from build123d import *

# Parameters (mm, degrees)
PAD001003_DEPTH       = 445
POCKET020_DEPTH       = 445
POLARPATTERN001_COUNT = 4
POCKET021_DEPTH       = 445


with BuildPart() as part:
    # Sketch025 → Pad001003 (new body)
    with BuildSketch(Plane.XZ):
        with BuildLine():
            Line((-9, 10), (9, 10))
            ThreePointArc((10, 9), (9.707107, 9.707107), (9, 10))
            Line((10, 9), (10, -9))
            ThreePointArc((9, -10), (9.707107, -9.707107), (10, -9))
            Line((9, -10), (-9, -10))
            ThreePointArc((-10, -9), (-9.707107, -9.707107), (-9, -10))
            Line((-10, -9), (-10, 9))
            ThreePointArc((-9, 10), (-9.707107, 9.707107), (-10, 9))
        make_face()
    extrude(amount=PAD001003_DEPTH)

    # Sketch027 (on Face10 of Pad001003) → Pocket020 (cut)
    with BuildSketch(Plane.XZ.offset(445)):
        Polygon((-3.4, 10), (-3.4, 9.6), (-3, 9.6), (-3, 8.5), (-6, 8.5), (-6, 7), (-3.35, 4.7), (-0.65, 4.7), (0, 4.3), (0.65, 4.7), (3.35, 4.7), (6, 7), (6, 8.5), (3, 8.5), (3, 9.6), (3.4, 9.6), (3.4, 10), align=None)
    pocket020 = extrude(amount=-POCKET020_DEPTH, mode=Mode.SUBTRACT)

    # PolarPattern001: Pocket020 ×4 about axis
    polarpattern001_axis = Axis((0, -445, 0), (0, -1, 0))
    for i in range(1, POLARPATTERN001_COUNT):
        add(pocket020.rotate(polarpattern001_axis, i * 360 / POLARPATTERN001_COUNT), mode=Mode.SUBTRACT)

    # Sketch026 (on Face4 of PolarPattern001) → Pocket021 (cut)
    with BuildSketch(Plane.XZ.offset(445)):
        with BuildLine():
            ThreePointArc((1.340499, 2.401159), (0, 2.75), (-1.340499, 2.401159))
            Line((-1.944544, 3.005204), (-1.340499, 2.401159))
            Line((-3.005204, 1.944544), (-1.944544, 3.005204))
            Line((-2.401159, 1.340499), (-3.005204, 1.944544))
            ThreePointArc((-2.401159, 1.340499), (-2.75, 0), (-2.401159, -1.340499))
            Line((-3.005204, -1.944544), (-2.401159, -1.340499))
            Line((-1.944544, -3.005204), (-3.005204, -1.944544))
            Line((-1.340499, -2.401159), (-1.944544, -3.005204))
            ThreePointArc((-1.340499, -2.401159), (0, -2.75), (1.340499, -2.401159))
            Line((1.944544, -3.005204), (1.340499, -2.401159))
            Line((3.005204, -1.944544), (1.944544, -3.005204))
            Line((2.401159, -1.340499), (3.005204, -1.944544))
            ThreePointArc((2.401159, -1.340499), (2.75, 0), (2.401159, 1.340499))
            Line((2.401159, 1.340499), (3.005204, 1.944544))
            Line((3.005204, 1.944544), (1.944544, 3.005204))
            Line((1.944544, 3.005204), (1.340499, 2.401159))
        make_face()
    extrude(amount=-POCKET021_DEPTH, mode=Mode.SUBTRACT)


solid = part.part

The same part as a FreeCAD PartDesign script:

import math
import FreeCAD as App
import Part
import Sketcher
from FreeCAD import Vector
Q = App.Units.Quantity

doc = App.newDocument("Part")
body = doc.addObject("PartDesign::Body", "Body")

sketch1 = body.newObject("Sketcher::SketchObject", "Sketch")
sketch1.AttachmentSupport = (doc.getObject("XZ_Plane"), [""])
sketch1.MapMode = "FlatFace"
sketch1.addGeometry([
    Part.LineSegment(Vector(9, 10, 0), Vector(-9, 10, 0)),
    Part.ArcOfCircle(Part.Circle(Vector(-9, 9, 0), Vector(0, 0, 1), 1), math.radians(90), math.radians(180)),
    Part.LineSegment(Vector(-10, 9, 0), Vector(-10, -9, 0)),
    Part.ArcOfCircle(Part.Circle(Vector(-9, -9, 0), Vector(0, 0, 1), 1), math.radians(180), math.radians(270)),
    Part.LineSegment(Vector(-9, -10, 0), Vector(9, -10, 0)),
    Part.ArcOfCircle(Part.Circle(Vector(9, -9, 0), Vector(0, 0, 1), 1), math.radians(-90), math.radians(0)),
    Part.LineSegment(Vector(10, -9, 0), Vector(10, 9, 0)),
    Part.ArcOfCircle(Part.Circle(Vector(9, 9, 0), Vector(0, 0, 1), 1), math.radians(0), math.radians(90)),
], False)
sketch1.addConstraint([
    Sketcher.Constraint("Tangent", 0, 2, 1, 1),
    Sketcher.Constraint("Tangent", 1, 2, 2, 1),
    Sketcher.Constraint("Tangent", 2, 2, 3, 1),
    Sketcher.Constraint("Tangent", 3, 2, 4, 1),
    Sketcher.Constraint("Tangent", 4, 2, 5, 1),
    Sketcher.Constraint("Tangent", 5, 2, 6, 1),
    Sketcher.Constraint("Tangent", 6, 2, 7, 1),
    Sketcher.Constraint("Tangent", 7, 2, 0, 1),
    Sketcher.Constraint("Horizontal", 0),
    Sketcher.Constraint("Vertical", 2),
    Sketcher.Constraint("Horizontal", 4),
    Sketcher.Constraint("Vertical", 6),
    Sketcher.Constraint("Equal", 1, 3),
    Sketcher.Constraint("Equal", 3, 5),
    Sketcher.Constraint("Equal", 5, 7),
    Sketcher.Constraint("Symmetric", 1, 3, 5, 3, -1, 1),
    Sketcher.Constraint("Equal", 4, 2),
    Sketcher.Constraint("Radius", 1, Q("0.999999 mm")),
    Sketcher.Constraint("DistanceX", 0, 2, 0, 1, Q("18 mm")),
])
pad1 = body.newObject("PartDesign::Pad", "Pad")
pad1.Profile = sketch1
pad1.Length = 445

sketch2 = body.newObject("Sketcher::SketchObject", "Sketch001")
sketch2.AttachmentSupport = (doc.getObject("XZ_Plane"), [""])
sketch2.MapMode = "FlatFace"
sketch2.AttachmentOffset = App.Placement(Vector(0, 0, 445), App.Rotation())
sketch2.addGeometry([
    Part.LineSegment(Vector(-3.4, 10, 0), Vector(-3.4, 9.6, 0)),
    Part.LineSegment(Vector(-3.4, 9.6, 0), Vector(-3, 9.6, 0)),
    Part.LineSegment(Vector(-3, 9.6, 0), Vector(-3, 8.5, 0)),
    Part.LineSegment(Vector(-3, 8.5, 0), Vector(-6, 8.5, 0)),
    Part.LineSegment(Vector(-6, 8.5, 0), Vector(-6, 7, 0)),
    Part.LineSegment(Vector(-6, 7, 0), Vector(-3.35, 4.7, 0)),
    Part.LineSegment(Vector(-3.35, 4.7, 0), Vector(-0.65, 4.7, 0)),
    Part.LineSegment(Vector(-0.65, 4.7, 0), Vector(0, 4.3, 0)),
    Part.LineSegment(Vector(0, 4.3, 0), Vector(0.65, 4.7, 0)),
    Part.LineSegment(Vector(0.65, 4.7, 0), Vector(3.35, 4.7, 0)),
    Part.LineSegment(Vector(3.35, 4.7, 0), Vector(6, 7, 0)),
    Part.LineSegment(Vector(6, 7, 0), Vector(6, 8.5, 0)),
    Part.LineSegment(Vector(6, 8.5, 0), Vector(3, 8.5, 0)),
    Part.LineSegment(Vector(3, 8.5, 0), Vector(3, 9.6, 0)),
    Part.LineSegment(Vector(3, 9.6, 0), Vector(3.4, 9.6, 0)),
    Part.LineSegment(Vector(3.4, 9.6, 0), Vector(3.4, 10, 0)),
    Part.LineSegment(Vector(3.4, 10, 0), Vector(-3.4, 10, 0)),
], False)
sketch2.addConstraint([
    Sketcher.Constraint("Coincident", 0, 2, 1, 1),
    Sketcher.Constraint("Coincident", 1, 2, 2, 1),
    Sketcher.Constraint("Coincident", 2, 2, 3, 1),
    Sketcher.Constraint("Coincident", 3, 2, 4, 1),
    Sketcher.Constraint("Coincident", 4, 2, 5, 1),
    Sketcher.Constraint("Coincident", 5, 2, 6, 1),
    Sketcher.Constraint("Coincident", 6, 2, 7, 1),
    Sketcher.Constraint("Coincident", 7, 2, 8, 1),
    Sketcher.Constraint("Coincident", 8, 2, 9, 1),
    Sketcher.Constraint("Coincident", 9, 2, 10, 1),
    Sketcher.Constraint("Coincident", 10, 2, 11, 1),
    Sketcher.Constraint("Coincident", 11, 2, 12, 1),
    Sketcher.Constraint("Coincident", 12, 2, 13, 1),
    Sketcher.Constraint("Coincident", 13, 2, 14, 1),
    Sketcher.Constraint("Coincident", 14, 2, 15, 1),
    Sketcher.Constraint("Coincident", 15, 2, 16, 1),
    Sketcher.Constraint("Coincident", 16, 2, 0, 1),
    Sketcher.Constraint("Vertical", 0),
    Sketcher.Constraint("Horizontal", 1),
    Sketcher.Constraint("Vertical", 2),
    Sketcher.Constraint("Horizontal", 3),
    Sketcher.Constraint("Vertical", 4),
    Sketcher.Constraint("Horizontal", 6),
    Sketcher.Constraint("Horizontal", 9),
    Sketcher.Constraint("Vertical", 11),
    Sketcher.Constraint("Horizontal", 12),
    Sketcher.Constraint("Vertical", 13),
    Sketcher.Constraint("Horizontal", 14),
    Sketcher.Constraint("Vertical", 15),
    Sketcher.Constraint("Horizontal", 16),
    Sketcher.Constraint("Symmetric", 6, 2, 8, 2, -2),
    Sketcher.Constraint("Symmetric", 4, 2, 10, 2, -2),
    Sketcher.Constraint("Symmetric", 2, 2, 12, 2, -2),
    Sketcher.Constraint("Symmetric", 0, 2, 14, 2, -2),
    Sketcher.Constraint("PointOnObject", 7, 2, -2),
    Sketcher.Constraint("Equal", 6, 9),
    Sketcher.Constraint("Equal", 14, 0),
    Sketcher.Constraint("DistanceX", 3, 2, 3, 1, Q("3 mm")),
    Sketcher.Constraint("DistanceX", 1, 1, 1, 2, Q("0.4 mm")),
    Sketcher.Constraint("DistanceX", 6, 1, 6, 2, Q("2.7 mm")),
    Sketcher.Constraint("DistanceX", 16, 2, 16, 1, Q("6.8 mm")),
    Sketcher.Constraint("DistanceY", 2, 2, 2, 1, Q("1.1 mm")),
    Sketcher.Constraint("DistanceY", 4, 2, 4, 1, Q("1.5 mm")),
    Sketcher.Constraint("DistanceY", -1, 1, 4, 2, Q("7 mm")),
    Sketcher.Constraint("DistanceX", 5, 2, 8, 2, Q("4 mm")),
    Sketcher.Constraint("DistanceY", -1, 1, 5, 2, Q("4.7 mm")),
    Sketcher.Constraint("DistanceY", -1, 1, 7, 2, Q("4.3 mm")),
])
pocket1 = body.newObject("PartDesign::Pocket", "Pocket")
pocket1.Profile = sketch2
pocket1.Length = 445
doc.recompute()

polarpattern = body.newObject("PartDesign::PolarPattern", "PolarPattern")
polarpattern.Originals = [pocket1]
polarpattern.Axis = (doc.getObject("Y_Axis"), [""])
polarpattern.Angle = 360
polarpattern.Occurrences = 4
body.Tip = polarpattern

sketch3 = body.newObject("Sketcher::SketchObject", "Sketch002")
sketch3.AttachmentSupport = (doc.getObject("XZ_Plane"), [""])
sketch3.MapMode = "FlatFace"
sketch3.AttachmentOffset = App.Placement(Vector(0, 0, 445), App.Rotation())
sketch3.addGeometry([
    Part.ArcOfCircle(Part.Circle(Vector(0, 0, 0), Vector(0, 0, 1), 2.8), math.radians(61), math.radians(119)),
    Part.LineSegment(Vector(-1.3, 2.4, 0), Vector(-1.9, 3, 0)),
    Part.LineSegment(Vector(-1.9, 3, 0), Vector(-3, 1.9, 0)),
    Part.LineSegment(Vector(-3, 1.9, 0), Vector(-2.4, 1.3, 0)),
    Part.ArcOfCircle(Part.Circle(Vector(0, 0, 0), Vector(0, 0, 1), 2.8), math.radians(151), math.radians(209)),
    Part.LineSegment(Vector(-2.4, -1.3, 0), Vector(-3, -1.9, 0)),
    Part.LineSegment(Vector(-3, -1.9, 0), Vector(-1.9, -3, 0)),
    Part.LineSegment(Vector(-1.9, -3, 0), Vector(-1.3, -2.4, 0)),
    Part.ArcOfCircle(Part.Circle(Vector(0, 0, 0), Vector(0, 0, 1), 2.8), math.radians(-119), math.radians(-61)),
    Part.LineSegment(Vector(1.3, -2.4, 0), Vector(1.9, -3, 0)),
    Part.LineSegment(Vector(1.9, -3, 0), Vector(3, -1.9, 0)),
    Part.LineSegment(Vector(3, -1.9, 0), Vector(2.4, -1.3, 0)),
    Part.ArcOfCircle(Part.Circle(Vector(0, 0, 0), Vector(0, 0, 1), 2.8), math.radians(-29), math.radians(29)),
    Part.LineSegment(Vector(2.4, 1.3, 0), Vector(3, 1.9, 0)),
    Part.LineSegment(Vector(3, 1.9, 0), Vector(1.9, 3, 0)),
    Part.LineSegment(Vector(1.9, 3, 0), Vector(1.3, 2.4, 0)),
], False)
sketch3.addConstraint([
    Sketcher.Constraint("Coincident", 0, 2, 1, 1),
    Sketcher.Constraint("Coincident", 1, 2, 2, 1),
    Sketcher.Constraint("Coincident", 2, 2, 3, 1),
    Sketcher.Constraint("Coincident", 3, 2, 4, 1),
    Sketcher.Constraint("Coincident", 4, 2, 5, 1),
    Sketcher.Constraint("Coincident", 5, 2, 6, 1),
    Sketcher.Constraint("Coincident", 6, 2, 7, 1),
    Sketcher.Constraint("Coincident", 7, 2, 8, 1),
    Sketcher.Constraint("Coincident", 8, 2, 9, 1),
    Sketcher.Constraint("Coincident", 9, 2, 10, 1),
    Sketcher.Constraint("Coincident", 10, 2, 11, 1),
    Sketcher.Constraint("Coincident", 11, 2, 12, 1),
    Sketcher.Constraint("Coincident", 12, 2, 13, 1),
    Sketcher.Constraint("Coincident", 13, 2, 14, 1),
    Sketcher.Constraint("Coincident", 14, 2, 15, 1),
    Sketcher.Constraint("Coincident", 15, 2, 0, 1),
    Sketcher.Constraint("Coincident", 0, 3, -1, 1),
    Sketcher.Constraint("Coincident", 4, 3, -1, 1),
    Sketcher.Constraint("Coincident", 8, 3, -1, 1),
    Sketcher.Constraint("Coincident", 12, 3, -1, 1),
    Sketcher.Constraint("Equal", 0, 4),
    Sketcher.Constraint("Equal", 4, 8),
    Sketcher.Constraint("Equal", 8, 12),
    Sketcher.Constraint("Symmetric", 1, 2, 9, 2, -1, 1),
    Sketcher.Constraint("Symmetric", 2, 2, 10, 2, -1, 1),
    Sketcher.Constraint("Symmetric", 5, 2, 13, 2, -1, 1),
    Sketcher.Constraint("Symmetric", 6, 2, 14, 2, -1, 1),
    Sketcher.Constraint("Symmetric", 6, 2, 9, 2, -2),
    Sketcher.Constraint("Symmetric", 5, 2, 10, 2, -2),
    Sketcher.Constraint("Perpendicular", 1, 2),
    Sketcher.Constraint("Perpendicular", 2, 3),
    Sketcher.Constraint("Perpendicular", 3, 5),
    Sketcher.Constraint("Perpendicular", 5, 6),
    Sketcher.Constraint("Perpendicular", 6, 7),
    Sketcher.Constraint("Perpendicular", 7, 9),
    Sketcher.Constraint("Perpendicular", 10, 11),
    Sketcher.Constraint("Perpendicular", 11, 13),
    Sketcher.Constraint("Perpendicular", 14, 15),
    Sketcher.Constraint("Equal", 1, 3),
    Sketcher.Constraint("Distance", 2, Q("1.5 mm")),
    Sketcher.Constraint("Radius", 0, Q("2.750003 mm")),
    Sketcher.Constraint("DistanceY", 8, 3, 1, 2, Q("3.005201 mm")),
])
pocket2 = body.newObject("PartDesign::Pocket", "Pocket001")
pocket2.Profile = sketch3
pocket2.Length = 445

doc.recompute()
